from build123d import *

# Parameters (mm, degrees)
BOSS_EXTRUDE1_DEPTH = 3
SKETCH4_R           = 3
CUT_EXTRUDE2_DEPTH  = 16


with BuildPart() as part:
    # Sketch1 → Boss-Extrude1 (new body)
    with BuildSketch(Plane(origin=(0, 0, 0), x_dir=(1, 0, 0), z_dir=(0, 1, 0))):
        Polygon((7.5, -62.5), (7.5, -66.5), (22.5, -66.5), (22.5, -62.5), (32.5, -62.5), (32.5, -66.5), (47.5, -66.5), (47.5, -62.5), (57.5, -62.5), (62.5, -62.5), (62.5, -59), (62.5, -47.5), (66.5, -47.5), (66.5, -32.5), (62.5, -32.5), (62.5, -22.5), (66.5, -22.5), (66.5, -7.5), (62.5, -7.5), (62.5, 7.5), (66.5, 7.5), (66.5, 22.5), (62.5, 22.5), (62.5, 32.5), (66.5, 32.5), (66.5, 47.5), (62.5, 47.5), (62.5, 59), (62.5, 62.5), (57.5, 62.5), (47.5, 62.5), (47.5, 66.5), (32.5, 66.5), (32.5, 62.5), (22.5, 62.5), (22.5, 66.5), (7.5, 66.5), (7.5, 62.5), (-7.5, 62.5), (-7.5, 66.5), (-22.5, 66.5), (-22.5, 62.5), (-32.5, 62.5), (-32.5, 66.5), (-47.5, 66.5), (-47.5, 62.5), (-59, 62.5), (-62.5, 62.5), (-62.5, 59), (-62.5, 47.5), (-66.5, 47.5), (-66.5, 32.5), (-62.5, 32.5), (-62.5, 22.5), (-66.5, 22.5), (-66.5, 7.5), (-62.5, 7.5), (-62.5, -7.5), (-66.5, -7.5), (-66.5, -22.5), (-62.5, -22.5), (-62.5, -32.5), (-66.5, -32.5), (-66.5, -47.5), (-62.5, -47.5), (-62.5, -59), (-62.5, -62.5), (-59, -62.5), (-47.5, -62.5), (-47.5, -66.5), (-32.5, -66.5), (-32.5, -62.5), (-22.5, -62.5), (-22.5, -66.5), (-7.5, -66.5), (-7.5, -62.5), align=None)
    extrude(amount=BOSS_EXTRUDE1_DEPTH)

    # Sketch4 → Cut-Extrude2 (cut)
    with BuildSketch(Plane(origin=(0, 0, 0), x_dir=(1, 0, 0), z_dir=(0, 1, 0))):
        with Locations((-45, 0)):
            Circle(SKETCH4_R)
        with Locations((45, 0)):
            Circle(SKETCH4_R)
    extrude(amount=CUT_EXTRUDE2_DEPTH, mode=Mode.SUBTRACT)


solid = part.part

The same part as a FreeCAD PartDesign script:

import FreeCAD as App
import Part
import Sketcher
from FreeCAD import Vector


def add_polygon(sketch, points):
    """Adds a closed chain of lines whose ends are joined by coincident constraints."""
    first, n = sketch.GeometryCount, len(points)
    for a, b in zip(points, points[1:] + points[:1]):
        sketch.addGeometry(Part.LineSegment(App.Vector(*a, 0), App.Vector(*b, 0)), False)
    for i in range(n):
        sketch.addConstraint(Sketcher.Constraint("Coincident", first + i, 2, first + (i + 1) % n, 1))

doc = App.newDocument("Part")
body = doc.addObject("PartDesign::Body", "Body")

sketch1 = doc.addObject("Sketcher::SketchObject", "Sketch")
body.addObject(sketch1)
sketch1.AttachmentSupport = (doc.XZ_Plane, [""])
sketch1.MapMode = "FlatFace"
add_polygon(sketch1, [(7.5, 62.5), (7.5, 66.5), (22.5, 66.5), (22.5, 62.5), (32.5, 62.5), (32.5, 66.5), (47.5, 66.5), (47.5, 62.5), (62.5, 62.5), (62.5, 47.5), (66.5, 47.5), (66.5, 32.5), (62.5, 32.5), (62.5, 22.5), (66.5, 22.5), (66.5, 7.5), (62.5, 7.5), (62.5, -7.5), (66.5, -7.5), (66.5, -22.5), (62.5, -22.5), (62.5, -32.5), (66.5, -32.5), (66.5, -47.5), (62.5, -47.5), (62.5, -62.5), (47.5, -62.5), (47.5, -66.5), (32.5, -66.5), (32.5, -62.5), (22.5, -62.5), (22.5, -66.5), (7.5, -66.5), (7.5, -62.5), (-7.5, -62.5), (-7.5, -66.5), (-22.5, -66.5), (-22.5, -62.5), (-32.5, -62.5), (-32.5, -66.5), (-47.5, -66.5), (-47.5, -62.5), (-62.5, -62.5), (-62.5, -47.5), (-66.5, -47.5), (-66.5, -32.5), (-62.5, -32.5), (-62.5, -22.5), (-66.5, -22.5), (-66.5, -7.5), (-62.5, -7.5), (-62.5, 7.5), (-66.5, 7.5), (-66.5, 22.5), (-62.5, 22.5), (-62.5, 32.5), (-66.5, 32.5), (-66.5, 47.5), (-62.5, 47.5), (-62.5, 62.5), (-47.5, 62.5), (-47.5, 66.5), (-32.5, 66.5), (-32.5, 62.5), (-22.5, 62.5), (-22.5, 66.5), (-7.5, 66.5), (-7.5, 62.5)])
sketch1.addConstraint(Sketcher.Constraint("Vertical", 0))
sketch1.addConstraint(Sketcher.Constraint("Horizontal", 1))
sketch1.addConstraint(Sketcher.Constraint("Vertical", 2))
sketch1.addConstraint(Sketcher.Constraint("Horizontal", 3))
sketch1.addConstraint(Sketcher.Constraint("Vertical", 4))
sketch1.addConstraint(Sketcher.Constraint("Horizontal", 5))
sketch1.addConstraint(Sketcher.Constraint("Vertical", 6))
sketch1.addConstraint(Sketcher.Constraint("Horizontal", 7))
sketch1.addConstraint(Sketcher.Constraint("Vertical", 8))
sketch1.addConstraint(Sketcher.Constraint("Horizontal", 9))
sketch1.addConstraint(Sketcher.Constraint("Vertical", 10))
sketch1.addConstraint(Sketcher.Constraint("Horizontal", 11))
sketch1.addConstraint(Sketcher.Constraint("Vertical", 12))
sketch1.addConstraint(Sketcher.Constraint("Horizontal", 13))
sketch1.addConstraint(Sketcher.Constraint("Vertical", 14))
sketch1.addConstraint(Sketcher.Constraint("Horizontal", 15))
sketch1.addConstraint(Sketcher.Constraint("Vertical", 16))
sketch1.addConstraint(Sketcher.Constraint("Horizontal", 17))
sketch1.addConstraint(Sketcher.Constraint("Vertical", 18))
sketch1.addConstraint(Sketcher.Constraint("Horizontal", 19))
sketch1.addConstraint(Sketcher.Constraint("Vertical", 20))
sketch1.addConstraint(Sketcher.Constraint("Horizontal", 21))
sketch1.addConstraint(Sketcher.Constraint("Vertical", 22))
sketch1.addConstraint(Sketcher.Constraint("Horizontal", 23))
sketch1.addConstraint(Sketcher.Constraint("Vertical", 24))
sketch1.addConstraint(Sketcher.Constraint("Horizontal", 25))
sketch1.addConstraint(Sketcher.Constraint("Vertical", 26))
sketch1.addConstraint(Sketcher.Constraint("Horizontal", 27))
sketch1.addConstraint(Sketcher.Constraint("Vertical", 28))
sketch1.addConstraint(Sketcher.Constraint("Horizontal", 29))
sketch1.addConstraint(Sketcher.Constraint("Vertical", 30))
sketch1.addConstraint(Sketcher.Constraint("Horizontal", 31))
sketch1.addConstraint(Sketcher.Constraint("Vertical", 32))
sketch1.addConstraint(Sketcher.Constraint("Horizontal", 33))
sketch1.addConstraint(Sketcher.Constraint("Vertical", 34))
sketch1.addConstraint(Sketcher.Constraint("Horizontal", 35))
sketch1.addConstraint(Sketcher.Constraint("Vertical", 36))
sketch1.addConstraint(Sketcher.Constraint("Horizontal", 37))
sketch1.addConstraint(Sketcher.Constraint("Vertical", 38))
sketch1.addConstraint(Sketcher.Constraint("Horizontal", 39))
sketch1.addConstraint(Sketcher.Constraint("Vertical", 40))
sketch1.addConstraint(Sketcher.Constraint("Horizontal", 41))
sketch1.addConstraint(Sketcher.Constraint("Vertical", 42))
sketch1.addConstraint(Sketcher.Constraint("Horizontal", 43))
sketch1.addConstraint(Sketcher.Constraint("Vertical", 44))
sketch1.addConstraint(Sketcher.Constraint("Horizontal", 45))
sketch1.addConstraint(Sketcher.Constraint("Vertical", 46))
sketch1.addConstraint(Sketcher.Constraint("Horizontal", 47))
sketch1.addConstraint(Sketcher.Constraint("Vertical", 48))
sketch1.addConstraint(Sketcher.Constraint("Horizontal", 49))
sketch1.addConstraint(Sketcher.Constraint("Vertical", 50))
sketch1.addConstraint(Sketcher.Constraint("Horizontal", 51))
sketch1.addConstraint(Sketcher.Constraint("Vertical", 52))
sketch1.addConstraint(Sketcher.Constraint("Horizontal", 53))
sketch1.addConstraint(Sketcher.Constraint("Vertical", 54))
sketch1.addConstraint(Sketcher.Constraint("Horizontal", 55))
sketch1.addConstraint(Sketcher.Constraint("Vertical", 56))
sketch1.addConstraint(Sketcher.Constraint("Horizontal", 57))
sketch1.addConstraint(Sketcher.Constraint("Vertical", 58))
sketch1.addConstraint(Sketcher.Constraint("Horizontal", 59))
sketch1.addConstraint(Sketcher.Constraint("Vertical", 60))
sketch1.addConstraint(Sketcher.Constraint("Horizontal", 61))
sketch1.addConstraint(Sketcher.Constraint("Vertical", 62))
sketch1.addConstraint(Sketcher.Constraint("Horizontal", 63))
sketch1.addConstraint(Sketcher.Constraint("Vertical", 64))
sketch1.addConstraint(Sketcher.Constraint("Horizontal", 65))
sketch1.addConstraint(Sketcher.Constraint("Vertical", 66))
sketch1.addConstraint(Sketcher.Constraint("Horizontal", 67))
sketch1.addConstraint(Sketcher.Constraint("Symmetric", 0, 2, 34, 2, -1, 1))
sketch1.addConstraint(Sketcher.Constraint("Symmetric", 2, 2, 36, 2, -1, 1))
sketch1.addConstraint(Sketcher.Constraint("Symmetric", 4, 2, 38, 2, -1, 1))
sketch1.addConstraint(Sketcher.Constraint("Symmetric", 6, 2, 40, 2, -1, 1))
sketch1.addConstraint(Sketcher.Constraint("Symmetric", 8, 2, 42, 2, -1, 1))
sketch1.addConstraint(Sketcher.Constraint("Symmetric", 10, 2, 44, 2, -1, 1))
sketch1.addConstraint(Sketcher.Constraint("Symmetric", 12, 2, 46, 2, -1, 1))
sketch1.addConstraint(Sketcher.Constraint("Symmetric", 14, 2, 48, 2, -1, 1))
sketch1.addConstraint(Sketcher.Constraint("Symmetric", 16, 2, 50, 2, -1, 1))
sketch1.addConstraint(Sketcher.Constraint("Symmetric", 18, 2, 52, 2, -1, 1))
sketch1.addConstraint(Sketcher.Constraint("Symmetric", 20, 2, 54, 2, -1, 1))
sketch1.addConstraint(Sketcher.Constraint("Symmetric", 22, 2, 56, 2, -1, 1))
sketch1.addConstraint(Sketcher.Constraint("Symmetric", 24, 2, 58, 2, -1, 1))
sketch1.addConstraint(Sketcher.Constraint("Symmetric", 26, 2, 60, 2, -1, 1))
sketch1.addConstraint(Sketcher.Constraint("Symmetric", 28, 2, 62, 2, -1, 1))
sketch1.addConstraint(Sketcher.Constraint("Symmetric", 30, 2, 64, 2, -1, 1))
sketch1.addConstraint(Sketcher.Constraint("Symmetric", 32, 2, 66, 2, -1, 1))
sketch1.addConstraint(Sketcher.Constraint("Symmetric", 31, 2, 34, 2, -2))
sketch1.addConstraint(Sketcher.Constraint("Symmetric", 29, 2, 36, 2, -2))
sketch1.addConstraint(Sketcher.Constraint("Symmetric", 27, 2, 38, 2, -2))
sketch1.addConstraint(Sketcher.Constraint("Symmetric", 25, 2, 40, 2, -2))
sketch1.addConstraint(Sketcher.Constraint("Symmetric", 23, 2, 42, 2, -2))
sketch1.addConstraint(Sketcher.Constraint("Symmetric", 21, 2, 44, 2, -2))
sketch1.addConstraint(Sketcher.Constraint("Symmetric", 19, 2, 46, 2, -2))
sketch1.addConstraint(Sketcher.Constraint("Symmetric", 17, 2, 48, 2, -2))
sketch1.addConstraint(Sketcher.Constraint("Horizontal", 1, 2, 4, 2))
sketch1.addConstraint(Sketcher.Constraint("Horizontal", 3, 2, 6, 2))
sketch1.addConstraint(Sketcher.Constraint("Horizontal", 29, 2, 32, 2))
sketch1.addConstraint(Sketcher.Constraint("Vertical", 8, 2, 11, 2))
sketch1.addConstraint(Sketcher.Constraint("Vertical", 10, 2, 13, 2))
sketch1.addConstraint(Sketcher.Constraint("Vertical", 12, 2, 15, 2))
sketch1.addConstraint(Sketcher.Constraint("Equal", 1, 5))
sketch1.addConstraint(Sketcher.Constraint("Equal", 5, 7))
sketch1.addConstraint(Sketcher.Constraint("Equal", 31, 33))
sketch1.addConstraint(Sketcher.Constraint("Equal", 57, 0))
sketch1.addConstraint(Sketcher.Constraint("Equal", 67, 8))
sketch1.addConstraint(Sketcher.Constraint("Equal", 8, 10))
sketch1.addConstraint(Sketcher.Constraint("Equal", 63, 12))
sketch1.addConstraint(Sketcher.Constraint("Equal", 10, 14))
sketch1.addConstraint(Sketcher.Constraint("Equal", 14, 16))
sketch1.addConstraint(Sketcher.Constraint("DistanceX", 1, 1, 1, 2, 15.0))
sketch1.addConstraint(Sketcher.Constraint("DistanceX", 3, 1, 3, 2, 10.0))
sketch1.addConstraint(Sketcher.Constraint("DistanceX", 9, 1, 9, 2, 4.0))
pad1 = doc.addObject("PartDesign::Pad", "Pad")
body.addObject(pad1)
pad1.Profile = sketch1
pad1.Length = 3
pad1.Reversed = True

sketch2 = doc.addObject("Sketcher::SketchObject", "Sketch001")
body.addObject(sketch2)
sketch2.AttachmentSupport = (doc.XZ_Plane, [""])
sketch2.MapMode = "FlatFace"
sketch2.addGeometry(Part.Circle(Vector(-45, 0, 0), Vector(0, 0, 1), 3), False)
sketch2.addGeometry(Part.Circle(Vector(45, 0, 0), Vector(0, 0, 1), 3), False)
sketch2.addConstraint(Sketcher.Constraint("Equal", 0, 1))
sketch2.addConstraint(Sketcher.Constraint("Symmetric", 0, 3, 1, 3, -1, 1))
sketch2.addConstraint(Sketcher.Constraint("PointOnObject", 0, 3, -1))
sketch2.addConstraint(Sketcher.Constraint("Diameter", 0, 6.0))
sketch2.addConstraint(Sketcher.Constraint("DistanceX", 0, 3, -1, 1, 45.0))
pocket1 = doc.addObject("PartDesign::Pocket", "Pocket")
body.addObject(pocket1)
pocket1.Profile = sketch2
pocket1.Length = 16

doc.recompute()
